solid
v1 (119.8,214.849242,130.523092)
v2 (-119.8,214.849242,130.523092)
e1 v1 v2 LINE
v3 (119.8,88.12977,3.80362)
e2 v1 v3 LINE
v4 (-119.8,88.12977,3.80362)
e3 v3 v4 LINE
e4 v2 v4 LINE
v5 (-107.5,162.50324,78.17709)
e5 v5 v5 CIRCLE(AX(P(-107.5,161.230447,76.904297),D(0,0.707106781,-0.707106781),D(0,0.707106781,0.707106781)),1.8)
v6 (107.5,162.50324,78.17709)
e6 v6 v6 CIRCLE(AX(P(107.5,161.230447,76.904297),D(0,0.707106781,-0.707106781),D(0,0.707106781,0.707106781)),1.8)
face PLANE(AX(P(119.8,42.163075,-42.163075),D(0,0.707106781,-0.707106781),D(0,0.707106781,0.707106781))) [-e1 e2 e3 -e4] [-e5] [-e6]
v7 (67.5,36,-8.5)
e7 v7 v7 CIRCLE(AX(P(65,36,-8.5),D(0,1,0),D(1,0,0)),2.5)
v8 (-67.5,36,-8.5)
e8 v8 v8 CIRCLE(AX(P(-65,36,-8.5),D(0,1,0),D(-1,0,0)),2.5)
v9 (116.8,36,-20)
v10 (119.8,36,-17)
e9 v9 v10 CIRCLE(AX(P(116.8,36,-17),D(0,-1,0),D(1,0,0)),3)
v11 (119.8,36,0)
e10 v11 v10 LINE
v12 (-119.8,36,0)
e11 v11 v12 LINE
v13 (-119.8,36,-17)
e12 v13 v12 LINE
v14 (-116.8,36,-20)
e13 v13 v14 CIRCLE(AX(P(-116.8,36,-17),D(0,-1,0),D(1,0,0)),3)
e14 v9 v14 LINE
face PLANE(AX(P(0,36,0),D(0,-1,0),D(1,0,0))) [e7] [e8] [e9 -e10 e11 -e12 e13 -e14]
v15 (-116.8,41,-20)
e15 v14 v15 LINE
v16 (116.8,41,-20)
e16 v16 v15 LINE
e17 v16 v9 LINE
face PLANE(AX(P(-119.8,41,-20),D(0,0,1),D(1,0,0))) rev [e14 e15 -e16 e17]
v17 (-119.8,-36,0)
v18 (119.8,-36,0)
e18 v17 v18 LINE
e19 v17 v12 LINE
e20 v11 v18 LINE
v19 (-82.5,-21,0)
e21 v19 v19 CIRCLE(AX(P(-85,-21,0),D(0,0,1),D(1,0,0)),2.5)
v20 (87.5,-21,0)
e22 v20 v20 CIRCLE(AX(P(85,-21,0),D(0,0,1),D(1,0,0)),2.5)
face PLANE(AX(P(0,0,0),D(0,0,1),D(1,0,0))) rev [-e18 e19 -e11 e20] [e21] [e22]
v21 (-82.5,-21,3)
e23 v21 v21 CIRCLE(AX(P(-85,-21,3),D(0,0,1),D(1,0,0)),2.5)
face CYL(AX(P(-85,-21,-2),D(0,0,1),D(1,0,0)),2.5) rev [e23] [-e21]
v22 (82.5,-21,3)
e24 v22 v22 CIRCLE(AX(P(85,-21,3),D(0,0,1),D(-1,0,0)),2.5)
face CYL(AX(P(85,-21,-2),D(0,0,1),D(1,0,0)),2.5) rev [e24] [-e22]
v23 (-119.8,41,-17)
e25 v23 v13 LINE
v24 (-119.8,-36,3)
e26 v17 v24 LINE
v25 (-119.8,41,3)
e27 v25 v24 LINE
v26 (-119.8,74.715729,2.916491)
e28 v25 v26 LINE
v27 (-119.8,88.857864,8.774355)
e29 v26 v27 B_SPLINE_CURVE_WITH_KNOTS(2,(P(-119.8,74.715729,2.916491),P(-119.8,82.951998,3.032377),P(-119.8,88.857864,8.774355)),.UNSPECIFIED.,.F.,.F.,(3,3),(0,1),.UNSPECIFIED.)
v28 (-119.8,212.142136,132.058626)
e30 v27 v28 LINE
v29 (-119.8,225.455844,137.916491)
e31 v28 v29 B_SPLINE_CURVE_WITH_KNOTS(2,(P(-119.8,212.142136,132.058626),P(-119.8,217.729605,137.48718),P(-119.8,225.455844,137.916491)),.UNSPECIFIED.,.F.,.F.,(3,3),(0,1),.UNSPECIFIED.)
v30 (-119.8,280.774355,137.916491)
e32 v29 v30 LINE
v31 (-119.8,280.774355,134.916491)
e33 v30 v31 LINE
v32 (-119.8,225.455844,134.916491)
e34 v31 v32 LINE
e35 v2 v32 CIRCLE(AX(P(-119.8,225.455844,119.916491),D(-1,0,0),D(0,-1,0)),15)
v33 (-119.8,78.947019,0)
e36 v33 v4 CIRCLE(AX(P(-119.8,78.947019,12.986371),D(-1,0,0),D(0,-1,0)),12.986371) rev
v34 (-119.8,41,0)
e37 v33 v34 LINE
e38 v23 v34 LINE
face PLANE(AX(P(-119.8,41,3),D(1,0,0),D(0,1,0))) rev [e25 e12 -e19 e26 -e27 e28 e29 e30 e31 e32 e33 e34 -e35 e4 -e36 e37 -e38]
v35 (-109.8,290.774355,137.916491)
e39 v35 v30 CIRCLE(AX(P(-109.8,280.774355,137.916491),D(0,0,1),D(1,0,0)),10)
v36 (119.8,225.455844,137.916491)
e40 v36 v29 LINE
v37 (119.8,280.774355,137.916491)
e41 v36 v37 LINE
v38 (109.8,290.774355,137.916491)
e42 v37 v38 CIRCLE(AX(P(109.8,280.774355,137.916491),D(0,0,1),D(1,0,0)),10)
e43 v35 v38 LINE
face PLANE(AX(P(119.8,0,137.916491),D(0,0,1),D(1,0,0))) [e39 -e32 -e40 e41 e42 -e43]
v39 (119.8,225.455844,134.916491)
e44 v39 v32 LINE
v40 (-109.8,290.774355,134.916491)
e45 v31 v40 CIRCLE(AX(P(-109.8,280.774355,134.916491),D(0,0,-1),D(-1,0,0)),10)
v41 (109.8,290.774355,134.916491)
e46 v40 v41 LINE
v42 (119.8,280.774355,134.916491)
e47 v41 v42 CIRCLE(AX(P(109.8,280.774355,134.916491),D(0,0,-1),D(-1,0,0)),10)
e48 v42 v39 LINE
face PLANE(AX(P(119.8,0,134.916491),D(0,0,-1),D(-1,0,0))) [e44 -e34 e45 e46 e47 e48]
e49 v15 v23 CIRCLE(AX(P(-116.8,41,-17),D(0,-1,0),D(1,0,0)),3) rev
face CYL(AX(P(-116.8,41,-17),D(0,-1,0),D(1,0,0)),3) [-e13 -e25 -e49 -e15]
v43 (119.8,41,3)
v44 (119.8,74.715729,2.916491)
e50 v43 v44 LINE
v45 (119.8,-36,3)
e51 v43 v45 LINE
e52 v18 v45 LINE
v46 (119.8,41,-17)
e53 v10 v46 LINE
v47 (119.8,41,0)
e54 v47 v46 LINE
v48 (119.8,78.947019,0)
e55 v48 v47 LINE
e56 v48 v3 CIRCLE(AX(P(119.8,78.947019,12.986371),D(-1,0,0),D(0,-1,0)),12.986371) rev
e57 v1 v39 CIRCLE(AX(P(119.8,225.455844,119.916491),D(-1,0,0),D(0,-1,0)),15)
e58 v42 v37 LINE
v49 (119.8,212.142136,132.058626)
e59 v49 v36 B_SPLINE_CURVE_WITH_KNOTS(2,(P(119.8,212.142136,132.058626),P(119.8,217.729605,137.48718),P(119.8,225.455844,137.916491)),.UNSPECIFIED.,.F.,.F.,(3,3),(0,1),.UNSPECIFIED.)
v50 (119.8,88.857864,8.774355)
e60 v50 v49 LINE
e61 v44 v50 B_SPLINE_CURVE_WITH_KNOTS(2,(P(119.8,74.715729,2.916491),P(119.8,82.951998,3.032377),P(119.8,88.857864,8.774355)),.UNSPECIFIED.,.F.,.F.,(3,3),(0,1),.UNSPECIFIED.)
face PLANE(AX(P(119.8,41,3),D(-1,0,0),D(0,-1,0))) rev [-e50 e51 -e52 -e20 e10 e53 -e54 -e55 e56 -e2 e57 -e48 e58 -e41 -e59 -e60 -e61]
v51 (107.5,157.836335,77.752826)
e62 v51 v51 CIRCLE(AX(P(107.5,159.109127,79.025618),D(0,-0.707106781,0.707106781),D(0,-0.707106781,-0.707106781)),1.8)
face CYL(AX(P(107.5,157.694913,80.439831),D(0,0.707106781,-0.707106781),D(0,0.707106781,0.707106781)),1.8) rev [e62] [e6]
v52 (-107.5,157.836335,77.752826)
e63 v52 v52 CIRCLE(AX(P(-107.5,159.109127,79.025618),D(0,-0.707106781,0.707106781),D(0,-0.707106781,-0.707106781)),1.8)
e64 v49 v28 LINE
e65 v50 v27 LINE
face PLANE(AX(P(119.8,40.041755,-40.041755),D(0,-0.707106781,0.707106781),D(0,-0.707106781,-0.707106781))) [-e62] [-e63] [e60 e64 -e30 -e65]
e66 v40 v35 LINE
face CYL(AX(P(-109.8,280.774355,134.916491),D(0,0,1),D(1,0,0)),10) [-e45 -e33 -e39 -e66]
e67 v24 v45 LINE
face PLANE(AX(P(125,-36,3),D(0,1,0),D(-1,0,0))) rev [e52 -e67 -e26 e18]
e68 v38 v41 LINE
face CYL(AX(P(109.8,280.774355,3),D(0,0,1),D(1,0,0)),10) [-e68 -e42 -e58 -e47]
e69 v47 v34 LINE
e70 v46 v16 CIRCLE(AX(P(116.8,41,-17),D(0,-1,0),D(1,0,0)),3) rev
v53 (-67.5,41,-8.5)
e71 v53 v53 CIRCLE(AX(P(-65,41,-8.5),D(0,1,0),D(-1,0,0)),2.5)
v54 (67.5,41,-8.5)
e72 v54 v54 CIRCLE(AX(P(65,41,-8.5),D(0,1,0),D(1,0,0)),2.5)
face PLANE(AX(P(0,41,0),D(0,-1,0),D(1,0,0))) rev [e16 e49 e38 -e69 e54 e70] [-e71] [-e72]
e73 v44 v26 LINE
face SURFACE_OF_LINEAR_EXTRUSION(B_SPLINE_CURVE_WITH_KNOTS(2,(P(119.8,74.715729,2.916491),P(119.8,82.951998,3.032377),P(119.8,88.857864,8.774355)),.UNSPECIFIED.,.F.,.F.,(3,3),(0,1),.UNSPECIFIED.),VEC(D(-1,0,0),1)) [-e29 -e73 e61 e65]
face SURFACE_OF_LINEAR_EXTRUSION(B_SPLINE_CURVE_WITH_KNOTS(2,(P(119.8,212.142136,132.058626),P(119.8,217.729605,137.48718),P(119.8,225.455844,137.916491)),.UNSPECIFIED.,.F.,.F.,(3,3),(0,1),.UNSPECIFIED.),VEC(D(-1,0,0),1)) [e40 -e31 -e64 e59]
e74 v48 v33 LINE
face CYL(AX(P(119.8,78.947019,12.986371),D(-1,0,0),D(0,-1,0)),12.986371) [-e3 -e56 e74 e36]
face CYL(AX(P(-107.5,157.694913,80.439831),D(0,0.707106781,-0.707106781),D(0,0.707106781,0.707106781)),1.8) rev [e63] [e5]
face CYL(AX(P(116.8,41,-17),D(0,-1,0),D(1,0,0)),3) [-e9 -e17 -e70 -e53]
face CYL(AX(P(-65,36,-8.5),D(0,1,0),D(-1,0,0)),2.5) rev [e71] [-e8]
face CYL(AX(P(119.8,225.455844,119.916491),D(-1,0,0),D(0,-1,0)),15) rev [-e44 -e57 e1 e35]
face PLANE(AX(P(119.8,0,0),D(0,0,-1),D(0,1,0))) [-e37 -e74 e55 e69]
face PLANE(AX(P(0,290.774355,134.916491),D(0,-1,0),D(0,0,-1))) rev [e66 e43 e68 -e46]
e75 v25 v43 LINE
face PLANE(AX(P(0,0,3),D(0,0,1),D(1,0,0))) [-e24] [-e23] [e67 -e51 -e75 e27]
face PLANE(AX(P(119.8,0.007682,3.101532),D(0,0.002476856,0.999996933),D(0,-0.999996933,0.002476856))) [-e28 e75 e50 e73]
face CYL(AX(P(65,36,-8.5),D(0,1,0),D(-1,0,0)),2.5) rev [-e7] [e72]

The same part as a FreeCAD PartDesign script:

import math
import FreeCAD as App
import Part
import Sketcher
from FreeCAD import Vector


def edges_at(feature, points):
    """Names of the edges that pass closest to the given points."""
    edges = feature.Shape.Edges
    near = lambda p: min(range(len(edges)), key=lambda i: edges[i].distToShape(Part.Vertex(*p))[0])
    return sorted({f"Edge{near(p) + 1}" for p in points})

doc = App.newDocument("Part")
body = doc.addObject("PartDesign::Body", "Body")

# Sketch on XY plane
sketch1 = body.newObject("Sketcher::SketchObject", "Sketch")
sketch1.AttachmentSupport = (doc.getObject("XY_Plane"), [""])
sketch1.MapMode = "FlatFace"
sketch1.addGeometry([
    Part.LineSegment(Vector(-125, 36, 0), Vector(-125, -36, 0)),
    Part.LineSegment(Vector(-125, -36, 0), Vector(125, -36, 0)),
    Part.LineSegment(Vector(125, -36, 0), Vector(125, 36, 0)),
    Part.LineSegment(Vector(125, 36, 0), Vector(-125, 36, 0)),
], False)
sketch1.addConstraint([
    Sketcher.Constraint("Coincident", 0, 2, 1, 1),
    Sketcher.Constraint("Coincident", 1, 2, 2, 1),
    Sketcher.Constraint("Coincident", 2, 2, 3, 1),
    Sketcher.Constraint("Coincident", 3, 2, 0, 1),
    Sketcher.Constraint("Vertical", 0),
    Sketcher.Constraint("Horizontal", 1),
    Sketcher.Constraint("Vertical", 2),
    Sketcher.Constraint("Horizontal", 3),
    Sketcher.Constraint("Symmetric", 0, 2, 2, 2, -1, 1),
    Sketcher.Constraint("DistanceX", 1, 1, 1, 2, 250.0),
    Sketcher.Constraint("DistanceY", 0, 2, 0, 1, 72.0),
])
pad1 = body.newObject("PartDesign::Pad", "Pad")
pad1.Profile = sketch1
pad1.Length = 3

# Sketch on XZ plane
sketch2 = body.newObject("Sketcher::SketchObject", "Sketch001")
sketch2.AttachmentSupport = (doc.getObject("XZ_Plane"), [""])
sketch2.MapMode = "FlatFace"
sketch2.AttachmentOffset = App.Placement(Vector(0, 0, -36), App.Rotation())
sketch2.addGeometry([
    Part.LineSegment(Vector(-120, -20, 0), Vector(-120, 3, 0)),
    Part.LineSegment(Vector(-120, 3, 0), Vector(120, 3, 0)),
    Part.LineSegment(Vector(120, 3, 0), Vector(120, -20, 0)),
    Part.LineSegment(Vector(120, -20, 0), Vector(-120, -20, 0)),
], False)
sketch2.addConstraint([
    Sketcher.Constraint("Coincident", 0, 2, 1, 1),
    Sketcher.Constraint("Coincident", 1, 2, 2, 1),
    Sketcher.Constraint("Coincident", 2, 2, 3, 1),
    Sketcher.Constraint("Coincident", 3, 2, 0, 1),
    Sketcher.Constraint("Vertical", 0),
    Sketcher.Constraint("Horizontal", 1),
    Sketcher.Constraint("Vertical", 2),
    Sketcher.Constraint("Horizontal", 3),
    Sketcher.Constraint("DistanceY", 0, 1, 0, 2, 23.0),
    Sketcher.Constraint("DistanceX", 1, 1, 1, 2, 239.6),
    Sketcher.Constraint("DistanceY", -1, 1, 0, 2, 3.0),
    Sketcher.Constraint("DistanceX", 0, 2, -1, 1, 119.8),
])
pad2 = body.newObject("PartDesign::Pad", "Pad001")
pad2.Profile = sketch2
pad2.Length = 5
pad2.Reversed = True

# Sketch on XZ plane
sketch3 = body.newObject("Sketcher::SketchObject", "Sketch002")
sketch3.AttachmentSupport = (doc.getObject("XZ_Plane"), [""])
sketch3.MapMode = "FlatFace"
sketch3.AttachmentOffset = App.Placement(Vector(0, 0, -41), App.Rotation())
sketch3.addGeometry([
    Part.Circle(Vector(-65, -8.5, 0), Vector(0, 0, 1), 2.5),
    Part.Circle(Vector(65, -8.5, 0), Vector(0, 0, 1), 2.5),
], False)
sketch3.addConstraint([
    Sketcher.Constraint("Equal", 0, 1),
    Sketcher.Constraint("Symmetric", 0, 3, 1, 3, -2),
    Sketcher.Constraint("Diameter", 0, 5.0),
    Sketcher.Constraint("DistanceX", 0, 3, -1, 1, 65.0),
    Sketcher.Constraint("DistanceY", 0, 3, -1, 1, 8.5),
])
pocket1 = body.newObject("PartDesign::Pocket", "Pocket")
pocket1.Profile = sketch3
pocket1.Length = 5
pocket1.Reversed = True
doc.recompute()

fillet = body.newObject("PartDesign::Fillet", "Fillet")
fillet.Base = (pocket1, edges_at(pocket1, [(-119.8, 38.5, -20), (119.8, 38.5, -20)]))
fillet.Radius = 3

# Sketch on XY plane
sketch4 = body.newObject("Sketcher::SketchObject", "Sketch003")
sketch4.AttachmentSupport = (doc.getObject("XY_Plane"), [""])
sketch4.MapMode = "FlatFace"
sketch4.AttachmentOffset = App.Placement(Vector(0, 0, 3), App.Rotation())
sketch4.addGeometry([
    Part.Circle(Vector(-85, -21, 0), Vector(0, 0, 1), 2.5),
    Part.Circle(Vector(85, -21, 0), Vector(0, 0, 1), 2.5),
], False)
sketch4.addConstraint([
    Sketcher.Constraint("Equal", 0, 1),
    Sketcher.Constraint("Symmetric", 0, 3, 1, 3, -2),
    Sketcher.Constraint("Diameter", 0, 5.0),
    Sketcher.Constraint("DistanceX", 0, 3, -1, 1, 85.0),
    Sketcher.Constraint("DistanceY", 0, 3, -1, 1, 21.0),
])
pocket2 = body.newObject("PartDesign::Pocket", "Pocket001")
pocket2.Profile = sketch4
pocket2.Length = 5

# Sketch on XY plane
sketch5 = body.newObject("Sketcher::SketchObject", "Sketch004")
sketch5.AttachmentSupport = (doc.getObject("XY_Plane"), [""])
sketch5.MapMode = "FlatFace"
sketch5.AttachmentOffset = App.Placement(Vector(0, 0, 3), App.Rotation())
sketch5.addGeometry([
    Part.LineSegment(Vector(-125, 36, 0), Vector(-125, -36, 0)),  # 0
    Part.LineSegment(Vector(-125, -36, 0), Vector(-120, -36, 0)),  # 1
    Part.LineSegment(Vector(-120, -36, 0), Vector(-120, 36, 0)),  # 2
    Part.LineSegment(Vector(-120, 36, 0), Vector(-125, 36, 0)),  # 3
    Part.LineSegment(Vector(120, 36, 0), Vector(120, -36, 0)),  # 4
    Part.LineSegment(Vector(120, -36, 0), Vector(125, -36, 0)),  # 5
    Part.LineSegment(Vector(125, -36, 0), Vector(125, 36, 0)),  # 6
    Part.LineSegment(Vector(125, 36, 0), Vector(120, 36, 0)),  # 7
], False)
sketch5.addConstraint([
    Sketcher.Constraint("Coincident", 0, 2, 1, 1),
    Sketcher.Constraint("Coincident", 1, 2, 2, 1),
    Sketcher.Constraint("Coincident", 2, 2, 3, 1),
    Sketcher.Constraint("Coincident", 3, 2, 0, 1),
    Sketcher.Constraint("Coincident", 4, 2, 5, 1),
    Sketcher.Constraint("Coincident", 5, 2, 6, 1),
    Sketcher.Constraint("Coincident", 6, 2, 7, 1),
    Sketcher.Constraint("Coincident", 7, 2, 4, 1),
    Sketcher.Constraint("Vertical", 0),
    Sketcher.Constraint("Horizontal", 1),
    Sketcher.Constraint("Vertical", 2),
    Sketcher.Constraint("Horizontal", 3),
    Sketcher.Constraint("Vertical", 4),
    Sketcher.Constraint("Horizontal", 5),
    Sketcher.Constraint("Vertical", 6),
    Sketcher.Constraint("Horizontal", 7),
    Sketcher.Constraint("Symmetric", 2, 2, 4, 2, -1, 1),
    Sketcher.Constraint("Symmetric", 0, 2, 6, 2, -1, 1),
    Sketcher.Constraint("Horizontal", 1, 2, 4, 2),
    Sketcher.Constraint("DistanceY", 0, 2, 0, 1, 72.0),
    Sketcher.Constraint("DistanceX", 1, 1, 1, 2, 5.2),
    Sketcher.Constraint("DistanceX", 0, 2, -1, 1, 125.0),
])
pocket3 = body.newObject("PartDesign::Pocket", "Pocket002")
pocket3.Profile = sketch5
pocket3.Length = 5

# Sketch on YZ plane
sketch6 = body.newObject("Sketcher::SketchObject", "Sketch005")
sketch6.AttachmentSupport = (doc.getObject("YZ_Plane"), [""])
sketch6.MapMode = "FlatFace"
sketch6.AttachmentOffset = App.Placement(Vector(0, 0, -119.8), App.Rotation())
sketch6.addGeometry([
    Part.LineSegment(Vector(41, 0, 0), Vector(41, 3, 0)),  # 0
    Part.LineSegment(Vector(41, 3, 0), Vector(74.715729, 2.916491, 0)),  # 1
    Part.BSplineCurve([Vector(74.715729, 2.916491, 0), Vector(82.951998, 3.032377, 0), Vector(88.857864, 8.774355, 0)], [3, 3], [0, 1], False, 2, [1, 1, 1], False),  # 2
    Part.LineSegment(Vector(88.857864, 8.774355, 0), Vector(212.142136, 132.058626, 0)),  # 3
    Part.BSplineCurve([Vector(212.142136, 132.058626, 0), Vector(217.729605, 137.48718, 0), Vector(225.455844, 137.916491, 0)], [3, 3], [0, 1], False, 2, [1, 1, 1], False),  # 4
    Part.LineSegment(Vector(225.455844, 137.916491, 0), Vector(287.774355, 137.916491, 0)),  # 5
    Part.LineSegment(Vector(287.774355, 137.916491, 0), Vector(287.774355, 134.916491, 0)),  # 6
    Part.LineSegment(Vector(287.774355, 134.916491, 0), Vector(225.455844, 134.916491, 0)),  # 7
    Part.ArcOfCircle(Part.Circle(Vector(225.455844, 119.916491, 0), Vector(0, 0, 1), 15), math.radians(90), math.radians(135)),  # 8
    Part.LineSegment(Vector(214.849242, 130.523092, 0), Vector(88.12977, 3.80362, 0)),  # 9
    Part.ArcOfCircle(Part.Circle(Vector(78.947019, 12.986371, 0), Vector(0, 0, 1), 12.986371), math.radians(-90), math.radians(-45)),  # 10
    Part.LineSegment(Vector(78.947019, 0, 0), Vector(41, 0, 0)),  # 11
], False)
sketch6.addConstraint([
    Sketcher.Constraint("Block", 2),
    Sketcher.Constraint("Block", 4),
    Sketcher.Constraint("Coincident", 0, 2, 1, 1),
    Sketcher.Constraint("Coincident", 1, 2, 2, 1),
    Sketcher.Constraint("Coincident", 2, 2, 3, 1),
    Sketcher.Constraint("Coincident", 3, 2, 4, 1),
    Sketcher.Constraint("Coincident", 4, 2, 5, 1),
    Sketcher.Constraint("Coincident", 5, 2, 6, 1),
    Sketcher.Constraint("Coincident", 6, 2, 7, 1),
    Sketcher.Constraint("Coincident", 7, 2, 8, 1),
    Sketcher.Constraint("Coincident", 8, 2, 9, 1),
    Sketcher.Constraint("Coincident", 9, 2, 10, 2),
    Sketcher.Constraint("Coincident", 10, 1, 11, 1),
    Sketcher.Constraint("Coincident", 11, 2, 0, 1),
    Sketcher.Constraint("Vertical", 0),
    Sketcher.Constraint("Horizontal", 5),
    Sketcher.Constraint("Vertical", 6),
    Sketcher.Constraint("Horizontal", 7),
    Sketcher.Constraint("Horizontal", 11),
    Sketcher.Constraint("PointOnObject", 10, 1, -1),
    Sketcher.Constraint("Radius", 8, 15.0),
    Sketcher.Constraint("DistanceY", 0, 1, 0, 2, 3.0),
    Sketcher.Constraint("DistanceY", 6, 2, 6, 1, 3.0),
    Sketcher.Constraint("DistanceX", -1, 1, 0, 2, 41.0),
    Sketcher.Constraint("Radius", 10, 12.986371),
    Sketcher.Constraint("DistanceX", 5, 1, 5, 2, 62.318511),
    Sketcher.Constraint("DistanceX", 7, 2, 7, 1, 62.318511),
    Sketcher.Constraint("DistanceX", 11, 2, 11, 1, 37.947019),
    Sketcher.Constraint("DistanceX", 8, 2, 7, 2, 10.606602),
    Sketcher.Constraint("DistanceY", 8, 2, 7, 2, 4.393398),
    Sketcher.Constraint("DistanceX", -1, 1, 10, 3, 78.947019),
    Sketcher.Constraint("DistanceX", -1, 1, 9, 2, 88.12977),
])
pad3 = body.newObject("PartDesign::Pad", "Pad002")
pad3.Profile = sketch6
pad3.Length = 239.6

# Sketch on XY plane
sketch7 = body.newObject("Sketcher::SketchObject", "Sketch006")
sketch7.AttachmentSupport = (doc.getObject("XY_Plane"), [""])
sketch7.MapMode = "FlatFace"
sketch7.AttachmentOffset = App.Placement(Vector(0, 0, 137.916491), App.Rotation())
sketch7.addGeometry([
    Part.LineSegment(Vector(-119.8, 290.8, 0), Vector(-119.8, 287.8, 0)),
    Part.LineSegment(Vector(-119.8, 287.8, 0), Vector(119.8, 287.8, 0)),
    Part.LineSegment(Vector(119.8, 287.8, 0), Vector(119.8, 290.8, 0)),
    Part.LineSegment(Vector(119.8, 290.8, 0), Vector(-119.8, 290.8, 0)),
], False)
sketch7.addConstraint([
    Sketcher.Constraint("Coincident", 0, 2, 1, 1),
    Sketcher.Constraint("Coincident", 1, 2, 2, 1),
    Sketcher.Constraint("Coincident", 2, 2, 3, 1),
    Sketcher.Constraint("Coincident", 3, 2, 0, 1),
    Sketcher.Constraint("Vertical", 0),
    Sketcher.Constraint("Horizontal", 1),
    Sketcher.Constraint("Vertical", 2),
    Sketcher.Constraint("Horizontal", 3),
    Sketcher.Constraint("DistanceY", 0, 2, 0, 1, 3.0),
    Sketcher.Constraint("DistanceX", 1, 1, 1, 2, 239.6),
    Sketcher.Constraint("DistanceX", 0, 2, -1, 1, 119.8),
    Sketcher.Constraint("DistanceY", -1, 1, 0, 2, 287.774355),
])
pad4 = body.newObject("PartDesign::Pad", "Pad003")
pad4.Profile = sketch7
pad4.Length = 3
pad4.Reversed = True
doc.recompute()

fillet2 = body.newObject("PartDesign::Fillet", "Fillet001")
fillet2.Base = (pad4, edges_at(pad4, [(-119.8, 290.774, 136.416), (119.8, 290.774, 136.416)]))
fillet2.Radius = 10

# Sketch on an angled plane
sketch8 = body.newObject("Sketcher::SketchObject", "Sketch007")
sketch8.Placement = App.Placement(Vector(0, 42.163075, -42.163075), App.Rotation(Vector(1, 0, 0), Vector(0, -0.707106781, -0.707106781), Vector(0, 0.707106781, -0.707106781), "ZXY"))
sketch8.addGeometry([
    Part.Circle(Vector(107.5, -168.4, 0), Vector(0, 0, 1), 1.8),
    Part.Circle(Vector(-107.5, -168.4, 0), Vector(0, 0, 1), 1.8),
], False)
sketch8.addConstraint([
    Sketcher.Constraint("Equal", 0, 1),
    Sketcher.Constraint("Symmetric", 0, 3, 1, 3, -2),
    Sketcher.Constraint("Diameter", 0, 3.6),
    Sketcher.Constraint("DistanceX", 1, 3, 0, 3, 215.0),
    Sketcher.Constraint("DistanceY", 0, 3, -1, 1, 168.386693),
])
pocket4 = body.newObject("PartDesign::Pocket", "Pocket003")
pocket4.Profile = sketch8
pocket4.Length = 5

doc.recompute()
